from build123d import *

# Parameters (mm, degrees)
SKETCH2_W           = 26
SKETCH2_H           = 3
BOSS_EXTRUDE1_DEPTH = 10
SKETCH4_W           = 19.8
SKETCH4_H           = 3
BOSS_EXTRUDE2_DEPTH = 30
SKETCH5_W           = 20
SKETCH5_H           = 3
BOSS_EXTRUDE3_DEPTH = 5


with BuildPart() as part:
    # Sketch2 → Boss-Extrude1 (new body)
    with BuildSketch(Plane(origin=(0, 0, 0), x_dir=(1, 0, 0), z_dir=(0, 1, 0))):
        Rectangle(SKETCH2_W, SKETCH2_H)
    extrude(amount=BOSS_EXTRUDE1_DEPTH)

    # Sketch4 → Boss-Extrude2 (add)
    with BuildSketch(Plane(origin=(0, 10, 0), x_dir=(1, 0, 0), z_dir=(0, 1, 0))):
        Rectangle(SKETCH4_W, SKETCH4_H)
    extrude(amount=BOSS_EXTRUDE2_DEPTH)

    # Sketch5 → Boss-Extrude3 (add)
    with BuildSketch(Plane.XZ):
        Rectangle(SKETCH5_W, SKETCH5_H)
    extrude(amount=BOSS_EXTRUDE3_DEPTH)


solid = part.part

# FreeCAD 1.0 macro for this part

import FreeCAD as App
import Part
import Sketcher
from FreeCAD import Vector
Q = App.Units.Quantity


def add_polygon(sketch, points):
    """Adds a closed chain of lines whose ends are joined by coincident constraints."""
    first, n = sketch.GeometryCount, len(points)
    for a, b in zip(points, points[1:] + points[:1]):
        sketch.addGeometry(Part.LineSegment(App.Vector(*a, 0), App.Vector(*b, 0)), False)
    for i in range(n):
        sketch.addConstraint(Sketcher.Constraint("Coincident", first + i, 2, first + (i + 1) % n, 1))

doc = App.newDocument("Part")
body = doc.addObject("PartDesign::Body", "Body")

sketch1 = doc.addObject("Sketcher::SketchObject", "Sketch")
body.addObject(sketch1)
sketch1.AttachmentSupport = (doc.XZ_Plane, [""])
sketch1.MapMode = "FlatFace"
add_polygon(sketch1, [(-13, -1.5), (-13, 1.5), (13, 1.5), (13, -1.5)])
sketch1.addConstraint([
    Sketcher.Constraint("Vertical", 0),
    Sketcher.Constraint("Horizontal", 1),
    Sketcher.Constraint("Vertical", 2),
    Sketcher.Constraint("Horizontal", 3),
    Sketcher.Constraint("Symmetric", 0, 2, 2, 2, -1, 1),
    Sketcher.Constraint("DistanceX", 1, 1, 1, 2, Q("26 mm")),
    Sketcher.Constraint("DistanceY", 0, 1, 0, 2, Q("3 mm")),
])
pad1 = doc.addObject("PartDesign::Pad", "Pad")
body.addObject(pad1)
pad1.Profile = sketch1
pad1.Length = 10
pad1.Reversed = True

sketch2 = doc.addObject("Sketcher::SketchObject", "Sketch001")
body.addObject(sketch2)
sketch2.AttachmentSupport = (doc.XZ_Plane, [""])
sketch2.MapMode = "FlatFace"
sketch2.AttachmentOffset = App.Placement(Vector(0, 0, -10), App.Rotation())
add_polygon(sketch2, [(-9.9, -1.5), (-9.9, 1.5), (9.9, 1.5), (9.9, -1.5)])
sketch2.addConstraint([
    Sketcher.Constraint("Vertical", 0),
    Sketcher.Constraint("Horizontal", 1),
    Sketcher.Constraint("Vertical", 2),
    Sketcher.Constraint("Horizontal", 3),
    Sketcher.Constraint("Symmetric", 0, 2, 2, 2, -1, 1),
    Sketcher.Constraint("DistanceY", 0, 1, 0, 2, Q("3 mm")),
    Sketcher.Constraint("DistanceX", 1, 1, 1, 2, Q("19.8 mm")),
])
pad2 = doc.addObject("PartDesign::Pad", "Pad001")
body.addObject(pad2)
pad2.Profile = sketch2
pad2.Length = 30
pad2.Reversed = True

sketch3 = doc.addObject("Sketcher::SketchObject", "Sketch002")
body.addObject(sketch3)
sketch3.AttachmentSupport = (doc.XZ_Plane, [""])
sketch3.MapMode = "FlatFace"
add_polygon(sketch3, [(-10, 1.5), (-10, -1.5), (10, -1.5), (10, 1.5)])
sketch3.addConstraint([
    Sketcher.Constraint("Vertical", 0),
    Sketcher.Constraint("Horizontal", 1),
    Sketcher.Constraint("Vertical", 2),
    Sketcher.Constraint("Horizontal", 3),
    Sketcher.Constraint("Symmetric", 0, 2, 2, 2, -1, 1),
    Sketcher.Constraint("DistanceX", 1, 1, 1, 2, Q("20 mm")),
    Sketcher.Constraint("DistanceY", 0, 2, 0, 1, Q("3 mm")),
])
pad3 = doc.addObject("PartDesign::Pad", "Pad002")
body.addObject(pad3)
pad3.Profile = sketch3
pad3.Length = 5

doc.recompute()
